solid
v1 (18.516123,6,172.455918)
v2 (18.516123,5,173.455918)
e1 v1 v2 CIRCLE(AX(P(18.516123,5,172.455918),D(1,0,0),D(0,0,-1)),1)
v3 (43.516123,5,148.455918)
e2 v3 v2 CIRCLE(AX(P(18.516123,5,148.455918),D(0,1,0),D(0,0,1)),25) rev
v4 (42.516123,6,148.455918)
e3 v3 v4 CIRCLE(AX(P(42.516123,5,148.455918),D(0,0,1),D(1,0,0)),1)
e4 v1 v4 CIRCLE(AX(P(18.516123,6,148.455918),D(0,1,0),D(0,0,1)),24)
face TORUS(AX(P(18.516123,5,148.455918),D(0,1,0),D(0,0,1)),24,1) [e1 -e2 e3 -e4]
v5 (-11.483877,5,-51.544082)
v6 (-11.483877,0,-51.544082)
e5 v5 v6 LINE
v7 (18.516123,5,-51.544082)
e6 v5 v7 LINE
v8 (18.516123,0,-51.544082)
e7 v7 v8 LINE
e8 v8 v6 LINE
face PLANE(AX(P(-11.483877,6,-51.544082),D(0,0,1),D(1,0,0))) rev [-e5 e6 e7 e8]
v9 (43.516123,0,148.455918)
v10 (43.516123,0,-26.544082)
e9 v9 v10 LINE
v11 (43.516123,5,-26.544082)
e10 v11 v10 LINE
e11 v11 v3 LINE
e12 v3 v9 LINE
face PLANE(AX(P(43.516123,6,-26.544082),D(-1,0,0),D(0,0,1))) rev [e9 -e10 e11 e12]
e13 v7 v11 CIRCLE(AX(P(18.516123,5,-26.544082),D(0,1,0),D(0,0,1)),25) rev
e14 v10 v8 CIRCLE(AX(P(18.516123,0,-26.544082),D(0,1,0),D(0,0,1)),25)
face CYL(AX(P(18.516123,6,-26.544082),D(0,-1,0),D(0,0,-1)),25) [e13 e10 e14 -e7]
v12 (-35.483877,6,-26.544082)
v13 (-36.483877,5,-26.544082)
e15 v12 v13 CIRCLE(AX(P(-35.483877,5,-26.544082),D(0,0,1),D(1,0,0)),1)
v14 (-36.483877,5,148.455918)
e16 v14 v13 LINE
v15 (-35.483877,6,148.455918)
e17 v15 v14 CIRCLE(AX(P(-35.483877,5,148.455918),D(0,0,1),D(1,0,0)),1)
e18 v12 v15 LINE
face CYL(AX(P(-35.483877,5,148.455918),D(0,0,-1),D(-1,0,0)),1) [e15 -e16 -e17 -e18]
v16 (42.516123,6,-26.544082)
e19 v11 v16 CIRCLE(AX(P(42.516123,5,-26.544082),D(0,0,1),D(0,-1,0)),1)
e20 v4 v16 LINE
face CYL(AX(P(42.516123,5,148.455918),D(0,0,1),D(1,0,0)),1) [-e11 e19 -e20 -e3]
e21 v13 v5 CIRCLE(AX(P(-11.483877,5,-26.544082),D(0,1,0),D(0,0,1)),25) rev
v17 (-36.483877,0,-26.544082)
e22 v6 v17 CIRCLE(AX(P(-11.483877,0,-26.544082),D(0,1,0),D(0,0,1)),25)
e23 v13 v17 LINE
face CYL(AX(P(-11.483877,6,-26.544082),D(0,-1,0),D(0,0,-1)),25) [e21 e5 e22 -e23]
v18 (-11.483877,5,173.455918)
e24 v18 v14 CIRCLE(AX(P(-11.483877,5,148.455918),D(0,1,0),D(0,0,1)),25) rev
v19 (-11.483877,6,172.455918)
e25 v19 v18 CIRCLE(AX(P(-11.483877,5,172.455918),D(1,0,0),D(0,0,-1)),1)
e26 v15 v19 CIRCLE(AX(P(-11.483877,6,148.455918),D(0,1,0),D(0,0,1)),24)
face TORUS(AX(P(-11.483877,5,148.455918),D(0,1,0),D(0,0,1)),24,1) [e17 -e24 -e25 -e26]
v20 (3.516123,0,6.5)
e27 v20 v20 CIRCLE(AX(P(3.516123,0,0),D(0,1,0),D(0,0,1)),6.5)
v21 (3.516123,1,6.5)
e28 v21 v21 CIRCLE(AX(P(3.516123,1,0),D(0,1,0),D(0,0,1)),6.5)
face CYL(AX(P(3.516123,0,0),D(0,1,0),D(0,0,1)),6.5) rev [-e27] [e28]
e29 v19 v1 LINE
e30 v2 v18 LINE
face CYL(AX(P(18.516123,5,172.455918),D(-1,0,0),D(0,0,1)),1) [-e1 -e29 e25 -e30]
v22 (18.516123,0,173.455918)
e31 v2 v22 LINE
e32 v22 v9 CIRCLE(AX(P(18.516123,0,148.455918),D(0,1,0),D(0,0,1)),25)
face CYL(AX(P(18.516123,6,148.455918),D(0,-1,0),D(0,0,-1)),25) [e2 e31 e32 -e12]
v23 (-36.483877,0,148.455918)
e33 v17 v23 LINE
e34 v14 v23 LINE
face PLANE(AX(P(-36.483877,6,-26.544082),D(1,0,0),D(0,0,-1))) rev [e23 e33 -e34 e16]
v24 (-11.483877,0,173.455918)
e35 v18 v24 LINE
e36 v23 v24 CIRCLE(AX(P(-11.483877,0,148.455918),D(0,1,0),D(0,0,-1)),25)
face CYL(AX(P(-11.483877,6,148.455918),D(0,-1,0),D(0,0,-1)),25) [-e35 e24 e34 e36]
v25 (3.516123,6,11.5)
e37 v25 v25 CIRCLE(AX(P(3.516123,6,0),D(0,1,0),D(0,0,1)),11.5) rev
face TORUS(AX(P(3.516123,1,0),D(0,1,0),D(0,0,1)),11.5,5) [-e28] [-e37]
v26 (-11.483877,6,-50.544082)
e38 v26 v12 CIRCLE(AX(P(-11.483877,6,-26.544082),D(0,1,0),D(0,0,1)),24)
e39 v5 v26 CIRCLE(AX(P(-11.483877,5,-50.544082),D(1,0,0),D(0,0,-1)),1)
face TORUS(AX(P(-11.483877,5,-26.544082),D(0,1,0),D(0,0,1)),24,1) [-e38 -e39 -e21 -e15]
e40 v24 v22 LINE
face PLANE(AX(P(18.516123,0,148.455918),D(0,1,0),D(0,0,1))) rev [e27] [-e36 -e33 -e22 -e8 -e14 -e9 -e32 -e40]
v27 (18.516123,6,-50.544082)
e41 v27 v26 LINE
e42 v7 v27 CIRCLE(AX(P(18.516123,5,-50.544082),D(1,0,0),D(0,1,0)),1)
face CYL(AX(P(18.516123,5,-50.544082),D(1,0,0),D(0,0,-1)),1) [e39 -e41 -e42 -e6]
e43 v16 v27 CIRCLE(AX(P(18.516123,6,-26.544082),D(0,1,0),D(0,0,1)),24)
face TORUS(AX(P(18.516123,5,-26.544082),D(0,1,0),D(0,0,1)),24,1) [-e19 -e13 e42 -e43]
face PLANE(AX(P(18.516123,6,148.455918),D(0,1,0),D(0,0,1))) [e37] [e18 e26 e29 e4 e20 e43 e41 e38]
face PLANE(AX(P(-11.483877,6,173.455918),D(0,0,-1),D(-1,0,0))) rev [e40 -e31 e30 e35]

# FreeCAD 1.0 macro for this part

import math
import FreeCAD as App
import Part
import Sketcher
Q = App.Units.Quantity


def edges_at(feature, points):
    """Names of the edges that pass closest to the given points."""
    edges = feature.Shape.Edges
    near = lambda p: min(range(len(edges)), key=lambda i: edges[i].distToShape(Part.Vertex(*p))[0])
    return sorted({f"Edge{near(p) + 1}" for p in points})

doc = App.newDocument("Part")
params = doc.addObject("Spreadsheet::Sheet", "Params")
for row, (alias, value) in enumerate([
    ("sketch1_radius", "25 mm"),
    ("sketch1_width", "30 mm"),
    ("sketch1_height", "175 mm"),
    ("pad1_length", "6 mm"),
    ("fillet_radius", "1 mm"),
    ("sketch2_diameter", "13 mm"),
    ("fillet2_radius", "5 mm"),
], start=1):
    params.set(f"A{row}", alias)
    params.set(f"B{row}", "=" + value)
    params.setAlias(f"B{row}", alias)

body = doc.addObject("PartDesign::Body", "Body")

sketch1 = body.newObject("Sketcher::SketchObject", "Sketch")
sketch1.AttachmentSupport = (doc.getObject("XZ_Plane"), [""])
sketch1.MapMode = "FlatFace"
sketch1.addGeometry(Part.LineSegment(App.Vector(18.516123, -51.544082, 0), App.Vector(-11.483877, -51.544082, 0)), False)
sketch1.addGeometry(Part.ArcOfCircle(Part.Circle(App.Vector(-11.483877, -26.544082, 0), App.Vector(0, 0, 1), 25), math.radians(180), math.radians(270)), False)
sketch1.addGeometry(Part.LineSegment(App.Vector(-36.483877, -26.544082, 0), App.Vector(-36.483877, 148.455918, 0)), False)
sketch1.addGeometry(Part.ArcOfCircle(Part.Circle(App.Vector(-11.483877, 148.455918, 0), App.Vector(0, 0, 1), 25), math.radians(90), math.radians(180)), False)
sketch1.addGeometry(Part.LineSegment(App.Vector(-11.483877, 173.455918, 0), App.Vector(18.516123, 173.455918, 0)), False)
sketch1.addGeometry(Part.ArcOfCircle(Part.Circle(App.Vector(18.516123, 148.455918, 0), App.Vector(0, 0, 1), 25), math.radians(0), math.radians(90)), False)
sketch1.addGeometry(Part.LineSegment(App.Vector(43.516123, 148.455918, 0), App.Vector(43.516123, -26.544082, 0)), False)
sketch1.addGeometry(Part.ArcOfCircle(Part.Circle(App.Vector(18.516123, -26.544082, 0), App.Vector(0, 0, 1), 25), math.radians(-90), math.radians(0)), False)
sketch1.addConstraint(Sketcher.Constraint("Tangent", 0, 2, 1, 2))
sketch1.addConstraint(Sketcher.Constraint("Tangent", 1, 1, 2, 1))
sketch1.addConstraint(Sketcher.Constraint("Tangent", 2, 2, 3, 2))
sketch1.addConstraint(Sketcher.Constraint("Tangent", 3, 1, 4, 1))
sketch1.addConstraint(Sketcher.Constraint("Tangent", 4, 2, 5, 2))
sketch1.addConstraint(Sketcher.Constraint("Tangent", 5, 1, 6, 1))
sketch1.addConstraint(Sketcher.Constraint("Tangent", 6, 2, 7, 2))
sketch1.addConstraint(Sketcher.Constraint("Tangent", 7, 1, 0, 1))
sketch1.addConstraint(Sketcher.Constraint("Horizontal", 0))
sketch1.addConstraint(Sketcher.Constraint("Vertical", 2))
sketch1.addConstraint(Sketcher.Constraint("Horizontal", 4))
sketch1.addConstraint(Sketcher.Constraint("Vertical", 6))
sketch1.addConstraint(Sketcher.Constraint("Equal", 1, 3))
sketch1.addConstraint(Sketcher.Constraint("Equal", 3, 5))
sketch1.addConstraint(Sketcher.Constraint("Equal", 5, 7))
sketch1.addConstraint(Sketcher.Constraint("Radius", 1, Q("25 mm")))
sketch1.addConstraint(Sketcher.Constraint("DistanceX", 0, 2, 0, 1, Q("30 mm")))
sketch1.addConstraint(Sketcher.Constraint("DistanceY", 2, 1, 2, 2, Q("175 mm")))
sketch1.addConstraint(Sketcher.Constraint("DistanceY", 1, 3, -1, 1, Q("26.544082 mm")))
sketch1.addConstraint(Sketcher.Constraint("DistanceX", 1, 3, -1, 1, Q("11.483877 mm")))
sketch1.setExpression("Constraints[15]", "Params.sketch1_radius")
sketch1.setExpression("Constraints[16]", "Params.sketch1_width")
sketch1.setExpression("Constraints[17]", "Params.sketch1_height")
pad1 = body.newObject("PartDesign::Pad", "Pad")
pad1.Profile = sketch1
pad1.setExpression("Length", "Params.pad1_length")
pad1.Reversed = True
doc.recompute()

fillet = body.newObject("PartDesign::Fillet", "Fillet")
fillet.Base = (pad1, edges_at(pad1, [
    (36.194, 6, -44.222),
    (3.516, 6, -51.544),
    (-29.162, 6, -44.222),
    (-36.484, 6, 60.956),
    (-29.162, 6, 166.134),
    (3.516, 6, 173.456),
    (36.194, 6, 166.134),
    (43.516, 6, 60.956),
]))
fillet.setExpression("Radius", "Params.fillet_radius")

sketch2 = body.newObject("Sketcher::SketchObject", "Sketch001")
sketch2.AttachmentSupport = (doc.getObject("XZ_Plane"), [""])
sketch2.MapMode = "FlatFace"
sketch2.AttachmentOffset = App.Placement(App.Vector(0, 0, -6), App.Rotation())
sketch2.addGeometry(Part.Circle(App.Vector(3.516123, 0, 0), App.Vector(0, 0, 1), 6.5), False)
sketch2.addConstraint(Sketcher.Constraint("PointOnObject", 0, 3, -1))
sketch2.addConstraint(Sketcher.Constraint("Diameter", 0, Q("13 mm")))
sketch2.addConstraint(Sketcher.Constraint("DistanceX", -1, 1, 0, 3, Q("3.516123 mm")))
sketch2.setExpression("Constraints[1]", "Params.sketch2_diameter")
pocket1 = body.newObject("PartDesign::Pocket", "Pocket")
pocket1.Profile = sketch2
pocket1.Type = "ThroughAll"
pocket1.Reversed = True
doc.recompute()

fillet2 = body.newObject("PartDesign::Fillet", "Fillet001")
fillet2.Base = (pocket1, edges_at(pocket1, [(3.516, 6, -6.5)]))
fillet2.setExpression("Radius", "Params.fillet2_radius")

doc.recompute()
